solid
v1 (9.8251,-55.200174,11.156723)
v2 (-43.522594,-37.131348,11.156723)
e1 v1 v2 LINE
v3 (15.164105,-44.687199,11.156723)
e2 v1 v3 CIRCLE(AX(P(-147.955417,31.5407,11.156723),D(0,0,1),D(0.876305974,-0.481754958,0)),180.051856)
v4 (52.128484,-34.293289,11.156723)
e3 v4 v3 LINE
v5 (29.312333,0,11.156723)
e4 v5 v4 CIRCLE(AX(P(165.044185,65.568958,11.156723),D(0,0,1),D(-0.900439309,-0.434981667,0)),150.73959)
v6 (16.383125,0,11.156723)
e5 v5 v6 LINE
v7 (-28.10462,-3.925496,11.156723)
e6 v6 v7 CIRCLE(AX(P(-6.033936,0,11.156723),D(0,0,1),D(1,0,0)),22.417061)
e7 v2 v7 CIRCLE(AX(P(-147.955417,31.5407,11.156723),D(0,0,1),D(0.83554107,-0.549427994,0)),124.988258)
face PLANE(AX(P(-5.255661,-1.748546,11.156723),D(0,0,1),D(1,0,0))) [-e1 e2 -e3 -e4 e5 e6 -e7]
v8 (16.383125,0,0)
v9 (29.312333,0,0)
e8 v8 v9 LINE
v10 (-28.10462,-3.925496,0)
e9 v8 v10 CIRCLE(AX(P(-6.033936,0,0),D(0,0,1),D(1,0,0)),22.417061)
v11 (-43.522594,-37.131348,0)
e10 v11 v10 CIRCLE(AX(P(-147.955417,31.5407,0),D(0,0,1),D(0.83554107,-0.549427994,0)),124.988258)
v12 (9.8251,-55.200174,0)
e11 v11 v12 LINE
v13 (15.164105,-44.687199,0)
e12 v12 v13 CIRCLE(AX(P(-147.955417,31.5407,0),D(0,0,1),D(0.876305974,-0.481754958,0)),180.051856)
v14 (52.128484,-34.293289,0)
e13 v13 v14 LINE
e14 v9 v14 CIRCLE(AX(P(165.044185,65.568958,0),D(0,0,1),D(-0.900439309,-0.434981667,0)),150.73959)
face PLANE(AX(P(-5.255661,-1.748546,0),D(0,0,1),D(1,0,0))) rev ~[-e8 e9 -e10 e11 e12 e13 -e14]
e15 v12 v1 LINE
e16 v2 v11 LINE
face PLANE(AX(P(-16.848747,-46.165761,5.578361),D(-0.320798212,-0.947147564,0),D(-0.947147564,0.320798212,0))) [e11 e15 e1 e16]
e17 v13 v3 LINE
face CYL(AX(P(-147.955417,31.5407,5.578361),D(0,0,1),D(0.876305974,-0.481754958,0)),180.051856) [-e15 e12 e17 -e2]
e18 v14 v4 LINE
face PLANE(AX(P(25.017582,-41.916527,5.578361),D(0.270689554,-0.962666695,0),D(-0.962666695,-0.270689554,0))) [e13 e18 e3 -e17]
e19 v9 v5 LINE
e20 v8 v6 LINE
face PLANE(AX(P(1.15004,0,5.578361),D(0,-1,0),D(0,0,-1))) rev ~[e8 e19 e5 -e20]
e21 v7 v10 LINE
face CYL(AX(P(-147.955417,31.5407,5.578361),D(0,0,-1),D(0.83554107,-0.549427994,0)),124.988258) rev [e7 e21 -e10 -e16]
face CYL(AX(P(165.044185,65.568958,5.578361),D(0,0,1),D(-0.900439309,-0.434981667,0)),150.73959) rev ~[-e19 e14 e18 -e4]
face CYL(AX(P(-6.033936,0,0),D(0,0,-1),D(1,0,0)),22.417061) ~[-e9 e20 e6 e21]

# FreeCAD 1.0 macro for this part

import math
import FreeCAD as App
import Part
import Sketcher

V = App.Vector
Q = App.Units.Quantity

doc = App.newDocument("Part")
params = doc.addObject("Spreadsheet::Sheet", "Params")
for row, (alias, value) in enumerate([
    ("pad1_length", "11.156723 mm"),
], start=1):
    params.set(f"A{row}", alias)
    params.set(f"B{row}", "=" + value)
    params.setAlias(f"B{row}", alias)

body = doc.addObject("PartDesign::Body", "Body")

sketch1 = doc.addObject("Sketcher::SketchObject", "Sketch")
body.addObject(sketch1)
sketch1.AttachmentSupport = (doc.XZ_Plane, [""])
sketch1.MapMode = "FlatFace"
sketch1.addGeometry([
    Part.LineSegment(V(-27.012253, 11.156723, 0), V(-27.012253, 0, 0)),
    Part.LineSegment(V(-27.012253, 0, 0), V(29.312333, 0, 0)),
    Part.LineSegment(V(29.312333, 0, 0), V(29.312333, 11.156723, 0)),
    Part.LineSegment(V(29.312333, 11.156723, 0), V(-27.012253, 11.156723, 0)),
], False)
sketch1.addConstraint([
    Sketcher.Constraint("Coincident", 0, 2, 1, 1),
    Sketcher.Constraint("Coincident", 1, 2, 2, 1),
    Sketcher.Constraint("Coincident", 2, 2, 3, 1),
    Sketcher.Constraint("Coincident", 3, 2, 0, 1),
    Sketcher.Constraint("Vertical", 0),
    Sketcher.Constraint("Horizontal", 1),
    Sketcher.Constraint("Vertical", 2),
    Sketcher.Constraint("Horizontal", 3),
    Sketcher.Constraint("PointOnObject", 0, 2, -1),
    Sketcher.Constraint("DistanceX", 1, 1, 1, 2, Q("56.324586 mm")),
    Sketcher.Constraint("DistanceY", 0, 2, 0, 1, Q("11.156723 mm")),
    Sketcher.Constraint("DistanceX", 0, 2, -1, 1, Q("27.012253 mm")),
])

sketch2 = doc.addObject("Sketcher::SketchObject", "Sketch001")
body.addObject(sketch2)
sketch2.AttachmentSupport = (doc.XY_Plane, [""])
sketch2.MapMode = "FlatFace"
sketch2.addGeometry(Part.ArcOfCircle(Part.Circle(V(-147.955417, 31.5407, 0), V(0, 0, 1), 145.384052), math.radians(-31.24101), math.radians(-12.529805)), False)
sketch2.addConstraint([
    Sketcher.Constraint("PointOnObject", 0, 2, -1),
    Sketcher.Constraint("Radius", 0, Q("145.384052 mm")),
    Sketcher.Constraint("DistanceY", -1, 1, 0, 3, Q("31.5407 mm")),
    Sketcher.Constraint("DistanceX", 0, 3, -1, 1, Q("147.955417 mm")),
    Sketcher.Constraint("DistanceX", 0, 1, -1, 1, Q("23.653032 mm")),
])
doc.recompute()

additivepipe = doc.addObject("PartDesign::AdditivePipe", "AdditivePipe")
body.addObject(additivepipe)
additivepipe.Profile = sketch1
additivepipe.Spine = (sketch2, ["Edge1"])

sketch3 = doc.addObject("Sketcher::SketchObject", "Sketch002")
body.addObject(sketch3)
sketch3.AttachmentSupport = (doc.XZ_Plane, [""])
sketch3.MapMode = "FlatFace"
sketch3.addGeometry([
    Part.LineSegment(V(-27.012253, 11.156723, 0), V(-27.012253, 0, 0)),
    Part.LineSegment(V(-27.012253, 0, 0), V(29.312333, 0, 0)),
    Part.LineSegment(V(29.312333, 0, 0), V(29.312333, 11.156723, 0)),
    Part.LineSegment(V(29.312333, 11.156723, 0), V(-27.012253, 11.156723, 0)),
], False)
sketch3.addConstraint([
    Sketcher.Constraint("Coincident", 0, 2, 1, 1),
    Sketcher.Constraint("Coincident", 1, 2, 2, 1),
    Sketcher.Constraint("Coincident", 2, 2, 3, 1),
    Sketcher.Constraint("Coincident", 3, 2, 0, 1),
    Sketcher.Constraint("Vertical", 0),
    Sketcher.Constraint("Horizontal", 1),
    Sketcher.Constraint("Vertical", 2),
    Sketcher.Constraint("Horizontal", 3),
    Sketcher.Constraint("PointOnObject", 0, 2, -1),
    Sketcher.Constraint("DistanceX", 1, 1, 1, 2, Q("56.324586 mm")),
    Sketcher.Constraint("DistanceY", 0, 2, 0, 1, Q("11.156723 mm")),
    Sketcher.Constraint("DistanceX", 0, 2, -1, 1, Q("27.012253 mm")),
])

sketch4 = doc.addObject("Sketcher::SketchObject", "Sketch003")
body.addObject(sketch4)
sketch4.AttachmentSupport = (doc.XY_Plane, [""])
sketch4.MapMode = "FlatFace"
sketch4.addGeometry(Part.ArcOfCircle(Part.Circle(V(165.044185, 65.568958, 0), V(0, 0, 1), 183.213023), math.radians(-159.029715), math.radians(-143.324412)), False)
sketch4.addConstraint([
    Sketcher.Constraint("PointOnObject", 0, 1, -1),
    Sketcher.Constraint("Radius", 0, Q("183.213023 mm")),
    Sketcher.Constraint("DistanceY", -1, 1, 0, 3, Q("65.568958 mm")),
    Sketcher.Constraint("DistanceX", -1, 1, 0, 3, Q("165.044185 mm")),
    Sketcher.Constraint("DistanceX", -1, 1, 0, 2, Q("18.101808 mm")),
])
doc.recompute()

additivepipe2 = doc.addObject("PartDesign::AdditivePipe", "AdditivePipe001")
body.addObject(additivepipe2)
additivepipe2.Profile = sketch3
additivepipe2.Spine = (sketch4, ["Edge1"])

sketch5 = doc.addObject("Sketcher::SketchObject", "Sketch004")
body.addObject(sketch5)
sketch5.AttachmentSupport = (doc.XY_Plane, [""])
sketch5.MapMode = "FlatFace"
sketch5.addGeometry([
    Part.ArcOfCircle(Part.Circle(V(-6.033936, 0, 0), V(0, 0, 1), 22.417061), math.radians(0), math.radians(253.048531)),
    Part.ArcOfCircle(Part.Circle(V(-147.955417, 31.5407, 0), V(0, 0, 1), 145.384052), math.radians(-21.373133), math.radians(-12.529805)),
    Part.ArcOfCircle(Part.Circle(V(165.044185, 65.568958, 0), V(0, 0, 1), 183.213023), math.radians(-159.029715), math.radians(-152.0149)),
    Part.ArcOfCircle(Part.Circle(V(-6.033936, 0, 0), V(0, 0, 1), 22.417061), math.radians(-65.522308), math.radians(0)),
], False)
sketch5.addConstraint([
    Sketcher.Constraint("Coincident", 0, 2, 1, 1),
    Sketcher.Constraint("Coincident", 1, 2, 2, 1),
    Sketcher.Constraint("Coincident", 2, 2, 3, 1),
    Sketcher.Constraint("Tangent", 3, 2, 0, 1),
    Sketcher.Constraint("Coincident", 1, 2, 0, 3),
    Sketcher.Constraint("Equal", 0, 3),
    Sketcher.Constraint("PointOnObject", 0, 3, -1),
    Sketcher.Constraint("PointOnObject", 3, 2, -1),
    Sketcher.Constraint("Radius", 0, Q("22.417061 mm")),
    Sketcher.Constraint("Radius", 1, Q("145.384052 mm")),
    Sketcher.Constraint("Radius", 2, Q("183.213023 mm")),
    Sketcher.Constraint("DistanceY", -1, 1, 1, 3, Q("31.5407 mm")),
    Sketcher.Constraint("DistanceY", -1, 1, 2, 3, Q("65.568958 mm")),
    Sketcher.Constraint("DistanceX", 0, 2, -1, 1, Q("12.56989 mm")),
])
pad1 = doc.addObject("PartDesign::Pad", "Pad")
body.addObject(pad1)
pad1.Profile = sketch5
pad1.setExpression("Length", "Params.pad1_length")

doc.recompute()
